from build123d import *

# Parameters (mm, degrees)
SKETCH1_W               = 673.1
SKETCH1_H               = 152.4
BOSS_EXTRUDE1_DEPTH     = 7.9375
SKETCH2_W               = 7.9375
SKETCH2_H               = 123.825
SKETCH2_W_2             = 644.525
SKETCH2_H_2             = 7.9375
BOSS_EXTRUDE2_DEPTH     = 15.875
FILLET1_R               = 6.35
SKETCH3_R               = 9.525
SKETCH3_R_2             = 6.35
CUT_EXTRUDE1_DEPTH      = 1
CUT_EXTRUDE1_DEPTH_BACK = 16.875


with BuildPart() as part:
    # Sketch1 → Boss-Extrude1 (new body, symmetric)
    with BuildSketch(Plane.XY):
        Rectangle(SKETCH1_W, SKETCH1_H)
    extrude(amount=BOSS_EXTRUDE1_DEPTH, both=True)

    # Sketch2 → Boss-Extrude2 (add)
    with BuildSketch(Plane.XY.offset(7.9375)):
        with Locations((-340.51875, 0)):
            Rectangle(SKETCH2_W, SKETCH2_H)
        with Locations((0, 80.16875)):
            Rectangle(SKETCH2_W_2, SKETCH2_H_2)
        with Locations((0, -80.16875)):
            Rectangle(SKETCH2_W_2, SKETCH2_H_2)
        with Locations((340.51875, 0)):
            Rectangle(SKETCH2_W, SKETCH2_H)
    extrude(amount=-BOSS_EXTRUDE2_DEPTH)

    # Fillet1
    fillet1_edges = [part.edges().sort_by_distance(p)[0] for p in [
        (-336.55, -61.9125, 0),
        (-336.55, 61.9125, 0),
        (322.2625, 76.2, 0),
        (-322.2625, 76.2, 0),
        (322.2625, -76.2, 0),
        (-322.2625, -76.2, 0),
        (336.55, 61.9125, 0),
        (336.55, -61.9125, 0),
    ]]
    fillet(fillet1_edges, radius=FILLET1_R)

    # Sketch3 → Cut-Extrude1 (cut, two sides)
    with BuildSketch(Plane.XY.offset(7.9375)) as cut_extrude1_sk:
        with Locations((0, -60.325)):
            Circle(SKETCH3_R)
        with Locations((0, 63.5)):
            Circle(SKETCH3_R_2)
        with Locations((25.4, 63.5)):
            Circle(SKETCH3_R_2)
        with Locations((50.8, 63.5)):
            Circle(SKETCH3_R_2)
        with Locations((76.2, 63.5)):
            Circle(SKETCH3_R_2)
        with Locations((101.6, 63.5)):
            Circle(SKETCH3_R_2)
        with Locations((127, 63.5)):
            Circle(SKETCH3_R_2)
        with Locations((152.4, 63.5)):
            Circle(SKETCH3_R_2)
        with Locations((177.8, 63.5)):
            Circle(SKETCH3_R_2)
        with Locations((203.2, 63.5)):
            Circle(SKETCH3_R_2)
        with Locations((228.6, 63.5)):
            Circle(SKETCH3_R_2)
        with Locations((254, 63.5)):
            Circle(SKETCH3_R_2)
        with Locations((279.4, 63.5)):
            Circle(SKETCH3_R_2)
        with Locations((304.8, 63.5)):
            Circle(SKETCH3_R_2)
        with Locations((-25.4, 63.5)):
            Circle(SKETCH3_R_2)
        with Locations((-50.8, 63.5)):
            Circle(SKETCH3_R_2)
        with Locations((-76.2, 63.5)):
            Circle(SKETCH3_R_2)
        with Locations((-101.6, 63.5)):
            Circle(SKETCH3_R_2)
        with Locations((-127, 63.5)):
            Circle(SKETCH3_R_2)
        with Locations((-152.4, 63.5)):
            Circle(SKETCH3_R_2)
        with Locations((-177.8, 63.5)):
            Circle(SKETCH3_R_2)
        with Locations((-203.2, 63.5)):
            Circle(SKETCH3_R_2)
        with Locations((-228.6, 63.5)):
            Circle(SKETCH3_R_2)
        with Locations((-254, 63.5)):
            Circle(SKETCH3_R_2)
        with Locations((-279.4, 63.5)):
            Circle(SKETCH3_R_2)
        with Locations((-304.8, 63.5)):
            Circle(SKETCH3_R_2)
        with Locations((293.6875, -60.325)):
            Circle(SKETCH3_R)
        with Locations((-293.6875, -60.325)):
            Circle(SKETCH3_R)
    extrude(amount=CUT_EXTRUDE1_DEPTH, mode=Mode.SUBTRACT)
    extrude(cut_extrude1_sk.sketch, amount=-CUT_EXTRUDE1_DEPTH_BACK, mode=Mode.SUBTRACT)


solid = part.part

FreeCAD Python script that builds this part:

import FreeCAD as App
import Part
import Sketcher

V = App.Vector
Q = App.Units.Quantity


def edges_at(feature, points):
    """Names of the edges that pass closest to the given points."""
    edges = feature.Shape.Edges
    near = lambda p: min(range(len(edges)), key=lambda i: edges[i].distToShape(Part.Vertex(*p))[0])
    return sorted({f"Edge{near(p) + 1}" for p in points})

doc = App.newDocument("Part")
body = doc.addObject("PartDesign::Body", "Body")

sketch1 = doc.addObject("Sketcher::SketchObject", "Sketch")
body.addObject(sketch1)
sketch1.AttachmentSupport = (doc.XY_Plane, [""])
sketch1.MapMode = "FlatFace"
sketch1.addGeometry([
    Part.LineSegment(V(-336.55, 76.2, 0), V(-336.55, -76.2, 0)),
    Part.LineSegment(V(-336.55, -76.2, 0), V(336.55, -76.2, 0)),
    Part.LineSegment(V(336.55, -76.2, 0), V(336.55, 76.2, 0)),
    Part.LineSegment(V(336.55, 76.2, 0), V(-336.55, 76.2, 0)),
], False)
sketch1.addConstraint([
    Sketcher.Constraint("Coincident", 0, 2, 1, 1),
    Sketcher.Constraint("Coincident", 1, 2, 2, 1),
    Sketcher.Constraint("Coincident", 2, 2, 3, 1),
    Sketcher.Constraint("Coincident", 3, 2, 0, 1),
    Sketcher.Constraint("Vertical", 0),
    Sketcher.Constraint("Horizontal", 1),
    Sketcher.Constraint("Vertical", 2),
    Sketcher.Constraint("Horizontal", 3),
    Sketcher.Constraint("Symmetric", 0, 2, 2, 2, -1, 1),
    Sketcher.Constraint("DistanceY", 0, 2, 0, 1, Q("6 in")),
    Sketcher.Constraint("DistanceX", 1, 1, 1, 2, Q("26.5 in")),
])
pad1 = doc.addObject("PartDesign::Pad", "Pad")
body.addObject(pad1)
pad1.Profile = sketch1
pad1.Length = Q("0.625 in")
pad1.Midplane = True

sketch2 = doc.addObject("Sketcher::SketchObject", "Sketch001")
body.addObject(sketch2)
sketch2.AttachmentSupport = (doc.XY_Plane, [""])
sketch2.MapMode = "FlatFace"
sketch2.AttachmentOffset = App.Placement(V(0, 0, 0.3125 * 25.4), App.Rotation())
sketch2.addGeometry([
    Part.LineSegment(V(-344.4875, 61.9125, 0), V(-344.4875, -61.9125, 0)),
    Part.LineSegment(V(-344.4875, -61.9125, 0), V(-336.55, -61.9125, 0)),
    Part.LineSegment(V(-336.55, -61.9125, 0), V(-336.55, 61.9125, 0)),
    Part.LineSegment(V(-336.55, 61.9125, 0), V(-344.4875, 61.9125, 0)),
    Part.LineSegment(V(-322.2625, 84.1375, 0), V(-322.2625, 76.2, 0)),
    Part.LineSegment(V(-322.2625, 76.2, 0), V(322.2625, 76.2, 0)),
    Part.LineSegment(V(322.2625, 76.2, 0), V(322.2625, 84.1375, 0)),
    Part.LineSegment(V(322.2625, 84.1375, 0), V(-322.2625, 84.1375, 0)),
    Part.LineSegment(V(-322.2625, -76.2, 0), V(-322.2625, -84.1375, 0)),
    Part.LineSegment(V(-322.2625, -84.1375, 0), V(322.2625, -84.1375, 0)),
    Part.LineSegment(V(322.2625, -84.1375, 0), V(322.2625, -76.2, 0)),
    Part.LineSegment(V(322.2625, -76.2, 0), V(-322.2625, -76.2, 0)),
    Part.LineSegment(V(336.55, 61.9125, 0), V(336.55, -61.9125, 0)),
    Part.LineSegment(V(336.55, -61.9125, 0), V(344.4875, -61.9125, 0)),
    Part.LineSegment(V(344.4875, -61.9125, 0), V(344.4875, 61.9125, 0)),
    Part.LineSegment(V(344.4875, 61.9125, 0), V(336.55, 61.9125, 0)),
], False)
sketch2.addConstraint([
    Sketcher.Constraint("Coincident", 0, 2, 1, 1),
    Sketcher.Constraint("Coincident", 1, 2, 2, 1),
    Sketcher.Constraint("Coincident", 2, 2, 3, 1),
    Sketcher.Constraint("Coincident", 3, 2, 0, 1),
    Sketcher.Constraint("Coincident", 4, 2, 5, 1),
    Sketcher.Constraint("Coincident", 5, 2, 6, 1),
    Sketcher.Constraint("Coincident", 6, 2, 7, 1),
    Sketcher.Constraint("Coincident", 7, 2, 4, 1),
    Sketcher.Constraint("Coincident", 8, 2, 9, 1),
    Sketcher.Constraint("Coincident", 9, 2, 10, 1),
    Sketcher.Constraint("Coincident", 10, 2, 11, 1),
    Sketcher.Constraint("Coincident", 11, 2, 8, 1),
    Sketcher.Constraint("Coincident", 12, 2, 13, 1),
    Sketcher.Constraint("Coincident", 13, 2, 14, 1),
    Sketcher.Constraint("Coincident", 14, 2, 15, 1),
    Sketcher.Constraint("Coincident", 15, 2, 12, 1),
    Sketcher.Constraint("Vertical", 0),
    Sketcher.Constraint("Horizontal", 1),
    Sketcher.Constraint("Vertical", 2),
    Sketcher.Constraint("Horizontal", 3),
    Sketcher.Constraint("Vertical", 4),
    Sketcher.Constraint("Horizontal", 5),
    Sketcher.Constraint("Vertical", 6),
    Sketcher.Constraint("Horizontal", 7),
    Sketcher.Constraint("Vertical", 8),
    Sketcher.Constraint("Horizontal", 9),
    Sketcher.Constraint("Vertical", 10),
    Sketcher.Constraint("Horizontal", 11),
    Sketcher.Constraint("Vertical", 12),
    Sketcher.Constraint("Horizontal", 13),
    Sketcher.Constraint("Vertical", 14),
    Sketcher.Constraint("Horizontal", 15),
    Sketcher.Constraint("Symmetric", 6, 2, 8, 2, -1, 1),
    Sketcher.Constraint("Symmetric", 4, 2, 10, 2, -1, 1),
    Sketcher.Constraint("Symmetric", 2, 2, 12, 2, -1, 1),
    Sketcher.Constraint("Symmetric", 0, 2, 14, 2, -1, 1),
    Sketcher.Constraint("Horizontal", 1, 2, 12, 2),
    Sketcher.Constraint("Vertical", 7, 2, 8, 2),
    Sketcher.Constraint("Equal", 15, 4),
    Sketcher.Constraint("DistanceY", -1, 1, 4, 2, Q("3 in")),
    Sketcher.Constraint("DistanceX", 1, 1, 1, 2, Q("0.3125 in")),
    Sketcher.Constraint("DistanceX", 5, 1, 5, 2, Q("25.375 in")),
    Sketcher.Constraint("DistanceY", 0, 2, 0, 1, Q("4.875 in")),
    Sketcher.Constraint("DistanceX", 1, 2, -1, 1, Q("13.25 in")),
])
pad2 = doc.addObject("PartDesign::Pad", "Pad001")
body.addObject(pad2)
pad2.Profile = sketch2
pad2.Length = Q("0.625 in")
pad2.Reversed = True
doc.recompute()

fillet = doc.addObject("PartDesign::Fillet", "Fillet")
body.addObject(fillet)
fillet.Base = (pad2, edges_at(pad2, [
    (-336.55, -61.913, 0),
    (-336.55, 61.913, 0),
    (322.262, 76.2, 0),
    (-322.262, 76.2, 0),
    (322.262, -76.2, 0),
    (-322.262, -76.2, 0),
    (336.55, 61.913, 0),
    (336.55, -61.913, 0),
]))
fillet.Radius = Q("0.25 in")

sketch3 = doc.addObject("Sketcher::SketchObject", "Sketch002")
body.addObject(sketch3)
sketch3.AttachmentSupport = (doc.XY_Plane, [""])
sketch3.MapMode = "FlatFace"
sketch3.AttachmentOffset = App.Placement(V(0, 0, 0.3125 * 25.4), App.Rotation())
sketch3.addGeometry([
    Part.Circle(V(0, -60.325, 0), V(0, 0, 1), 9.525),
    Part.Circle(V(0, 63.5, 0), V(0, 0, 1), 6.35),
    Part.Circle(V(25.4, 63.5, 0), V(0, 0, 1), 6.35),
    Part.Circle(V(50.8, 63.5, 0), V(0, 0, 1), 6.35),
    Part.Circle(V(76.2, 63.5, 0), V(0, 0, 1), 6.35),
    Part.Circle(V(101.6, 63.5, 0), V(0, 0, 1), 6.35),
    Part.Circle(V(127, 63.5, 0), V(0, 0, 1), 6.35),
    Part.Circle(V(152.4, 63.5, 0), V(0, 0, 1), 6.35),
    Part.Circle(V(177.8, 63.5, 0), V(0, 0, 1), 6.35),
    Part.Circle(V(203.2, 63.5, 0), V(0, 0, 1), 6.35),
    Part.Circle(V(228.6, 63.5, 0), V(0, 0, 1), 6.35),
    Part.Circle(V(254, 63.5, 0), V(0, 0, 1), 6.35),
    Part.Circle(V(279.4, 63.5, 0), V(0, 0, 1), 6.35),
    Part.Circle(V(304.8, 63.5, 0), V(0, 0, 1), 6.35),
    Part.Circle(V(-25.4, 63.5, 0), V(0, 0, 1), 6.35),
    Part.Circle(V(-50.8, 63.5, 0), V(0, 0, 1), 6.35),
    Part.Circle(V(-76.2, 63.5, 0), V(0, 0, 1), 6.35),
    Part.Circle(V(-101.6, 63.5, 0), V(0, 0, 1), 6.35),
    Part.Circle(V(-127, 63.5, 0), V(0, 0, 1), 6.35),
    Part.Circle(V(-152.4, 63.5, 0), V(0, 0, 1), 6.35),
    Part.Circle(V(-177.8, 63.5, 0), V(0, 0, 1), 6.35),
    Part.Circle(V(-203.2, 63.5, 0), V(0, 0, 1), 6.35),
    Part.Circle(V(-228.6, 63.5, 0), V(0, 0, 1), 6.35),
    Part.Circle(V(-254, 63.5, 0), V(0, 0, 1), 6.35),
    Part.Circle(V(-279.4, 63.5, 0), V(0, 0, 1), 6.35),
    Part.Circle(V(-304.8, 63.5, 0), V(0, 0, 1), 6.35),
    Part.Circle(V(293.6875, -60.325, 0), V(0, 0, 1), 9.525),
    Part.Circle(V(-293.6875, -60.325, 0), V(0, 0, 1), 9.525),
], False)
sketch3.addConstraint([
    Sketcher.Constraint("Equal", 1, 2),
    Sketcher.Constraint("Equal", 2, 3),
    Sketcher.Constraint("Equal", 3, 4),
    Sketcher.Constraint("Equal", 4, 5),
    Sketcher.Constraint("Equal", 5, 6),
    Sketcher.Constraint("Equal", 6, 7),
    Sketcher.Constraint("Equal", 7, 8),
    Sketcher.Constraint("Equal", 8, 9),
    Sketcher.Constraint("Equal", 9, 10),
    Sketcher.Constraint("Equal", 10, 11),
    Sketcher.Constraint("Equal", 11, 12),
    Sketcher.Constraint("Equal", 12, 13),
    Sketcher.Constraint("Equal", 13, 14),
    Sketcher.Constraint("Equal", 14, 15),
    Sketcher.Constraint("Equal", 15, 16),
    Sketcher.Constraint("Equal", 16, 17),
    Sketcher.Constraint("Equal", 17, 18),
    Sketcher.Constraint("Equal", 18, 19),
    Sketcher.Constraint("Equal", 19, 20),
    Sketcher.Constraint("Equal", 20, 21),
    Sketcher.Constraint("Equal", 21, 22),
    Sketcher.Constraint("Equal", 22, 23),
    Sketcher.Constraint("Equal", 23, 24),
    Sketcher.Constraint("Equal", 24, 25),
    Sketcher.Constraint("Equal", 0, 26),
    Sketcher.Constraint("Equal", 26, 27),
    Sketcher.Constraint("Symmetric", 2, 3, 14, 3, -2),
    Sketcher.Constraint("Symmetric", 3, 3, 15, 3, -2),
    Sketcher.Constraint("Symmetric", 4, 3, 16, 3, -2),
    Sketcher.Constraint("Symmetric", 5, 3, 17, 3, -2),
    Sketcher.Constraint("Symmetric", 6, 3, 18, 3, -2),
    Sketcher.Constraint("Symmetric", 7, 3, 19, 3, -2),
    Sketcher.Constraint("Symmetric", 8, 3, 20, 3, -2),
    Sketcher.Constraint("Symmetric", 9, 3, 21, 3, -2),
    Sketcher.Constraint("Symmetric", 10, 3, 22, 3, -2),
    Sketcher.Constraint("Symmetric", 11, 3, 23, 3, -2),
    Sketcher.Constraint("Symmetric", 12, 3, 24, 3, -2),
    Sketcher.Constraint("Symmetric", 13, 3, 25, 3, -2),
    Sketcher.Constraint("Symmetric", 26, 3, 27, 3, -2),
    Sketcher.Constraint("PointOnObject", 0, 3, -2),
    Sketcher.Constraint("PointOnObject", 1, 3, -2),
    Sketcher.Constraint("Horizontal", 1, 3, 2, 3),
    Sketcher.Constraint("Horizontal", 2, 3, 3, 3),
    Sketcher.Constraint("Horizontal", 3, 3, 4, 3),
    Sketcher.Constraint("Horizontal", 4, 3, 5, 3),
    Sketcher.Constraint("Horizontal", 5, 3, 6, 3),
    Sketcher.Constraint("Horizontal", 6, 3, 7, 3),
    Sketcher.Constraint("Horizontal", 7, 3, 8, 3),
    Sketcher.Constraint("Horizontal", 8, 3, 9, 3),
    Sketcher.Constraint("Horizontal", 9, 3, 10, 3),
    Sketcher.Constraint("Horizontal", 10, 3, 11, 3),
    Sketcher.Constraint("Horizontal", 11, 3, 12, 3),
    Sketcher.Constraint("Horizontal", 12, 3, 13, 3),
    Sketcher.Constraint("Horizontal", 0, 3, 26, 3),
    Sketcher.Constraint("Diameter", 1, Q("0.5 in")),
    Sketcher.Constraint("Diameter", 0, Q("0.75 in")),
    Sketcher.Constraint("DistanceX", -1, 1, 2, 3, Q("1 in")),
    Sketcher.Constraint("DistanceX", -1, 1, 3, 3, Q("2 in")),
    Sketcher.Constraint("DistanceX", -1, 1, 4, 3, Q("3 in")),
    Sketcher.Constraint("DistanceX", -1, 1, 5, 3, Q("4 in")),
    Sketcher.Constraint("DistanceX", -1, 1, 6, 3, Q("5 in")),
    Sketcher.Constraint("DistanceX", -1, 1, 7, 3, Q("6 in")),
    Sketcher.Constraint("DistanceX", -1, 1, 8, 3, Q("7 in")),
    Sketcher.Constraint("DistanceX", -1, 1, 9, 3, Q("8 in")),
    Sketcher.Constraint("DistanceX", -1, 1, 10, 3, Q("9 in")),
    Sketcher.Constraint("DistanceX", -1, 1, 11, 3, Q("10 in")),
    Sketcher.Constraint("DistanceX", -1, 1, 12, 3, Q("11 in")),
    Sketcher.Constraint("DistanceX", -1, 1, 13, 3, Q("12 in")),
    Sketcher.Constraint("DistanceY", -1, 1, 1, 3, Q("2.5 in")),
    Sketcher.Constraint("DistanceY", 0, 3, -1, 1, Q("2.375 in")),
    Sketcher.Constraint("DistanceX", -1, 1, 26, 3, Q("11.5625 in")),
])
pocket1 = doc.addObject("PartDesign::Pocket", "Pocket")
body.addObject(pocket1)
pocket1.Profile = sketch3
pocket1.Type = "ThroughAll"
pocket1.Midplane = True

doc.recompute()
